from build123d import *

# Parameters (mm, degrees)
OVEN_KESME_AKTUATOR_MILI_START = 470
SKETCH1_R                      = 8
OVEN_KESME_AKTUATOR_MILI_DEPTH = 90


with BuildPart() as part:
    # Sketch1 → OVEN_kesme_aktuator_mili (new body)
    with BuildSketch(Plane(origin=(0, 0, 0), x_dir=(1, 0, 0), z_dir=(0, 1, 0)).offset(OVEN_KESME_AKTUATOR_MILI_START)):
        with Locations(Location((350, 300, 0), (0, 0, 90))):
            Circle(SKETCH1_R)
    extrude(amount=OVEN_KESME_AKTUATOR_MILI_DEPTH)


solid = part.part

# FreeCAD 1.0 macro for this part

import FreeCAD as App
import Part
import Sketcher

V = App.Vector

doc = App.newDocument("Part")
params = doc.addObject("Spreadsheet::Sheet", "Params")
for row, (alias, value) in enumerate([
    ("sketch1_diameter", "16 mm"),
    ("pad1_length", "90 mm"),
], start=1):
    params.set(f"A{row}", alias)
    params.set(f"B{row}", "=" + value)
    params.setAlias(f"B{row}", alias)

body = doc.addObject("PartDesign::Body", "Body")

# Sketch on XZ plane
sketch1 = doc.addObject("Sketcher::SketchObject", "Sketch")
body.addObject(sketch1)
sketch1.AttachmentSupport = (doc.XZ_Plane, [""])
sketch1.MapMode = "FlatFace"
sketch1.AttachmentOffset = App.Placement(V(0, 0, -470), App.Rotation())
sketch1.addGeometry(Part.Circle(V(350, -300, 0), V(0, 0, 1), 8), False)
sketch1.addConstraint(Sketcher.Constraint("Diameter", 0, 16.0))
sketch1.addConstraint(Sketcher.Constraint("DistanceX", -1, 1, 0, 3, 350.0))
sketch1.addConstraint(Sketcher.Constraint("DistanceY", 0, 3, -1, 1, 300.0))
sketch1.setExpression("Constraints[0]", "Params.sketch1_diameter")
pad1 = doc.addObject("PartDesign::Pad", "Pad")
body.addObject(pad1)
pad1.Profile = sketch1
pad1.setExpression("Length", "Params.pad1_length")
pad1.Reversed = True

doc.recompute()
